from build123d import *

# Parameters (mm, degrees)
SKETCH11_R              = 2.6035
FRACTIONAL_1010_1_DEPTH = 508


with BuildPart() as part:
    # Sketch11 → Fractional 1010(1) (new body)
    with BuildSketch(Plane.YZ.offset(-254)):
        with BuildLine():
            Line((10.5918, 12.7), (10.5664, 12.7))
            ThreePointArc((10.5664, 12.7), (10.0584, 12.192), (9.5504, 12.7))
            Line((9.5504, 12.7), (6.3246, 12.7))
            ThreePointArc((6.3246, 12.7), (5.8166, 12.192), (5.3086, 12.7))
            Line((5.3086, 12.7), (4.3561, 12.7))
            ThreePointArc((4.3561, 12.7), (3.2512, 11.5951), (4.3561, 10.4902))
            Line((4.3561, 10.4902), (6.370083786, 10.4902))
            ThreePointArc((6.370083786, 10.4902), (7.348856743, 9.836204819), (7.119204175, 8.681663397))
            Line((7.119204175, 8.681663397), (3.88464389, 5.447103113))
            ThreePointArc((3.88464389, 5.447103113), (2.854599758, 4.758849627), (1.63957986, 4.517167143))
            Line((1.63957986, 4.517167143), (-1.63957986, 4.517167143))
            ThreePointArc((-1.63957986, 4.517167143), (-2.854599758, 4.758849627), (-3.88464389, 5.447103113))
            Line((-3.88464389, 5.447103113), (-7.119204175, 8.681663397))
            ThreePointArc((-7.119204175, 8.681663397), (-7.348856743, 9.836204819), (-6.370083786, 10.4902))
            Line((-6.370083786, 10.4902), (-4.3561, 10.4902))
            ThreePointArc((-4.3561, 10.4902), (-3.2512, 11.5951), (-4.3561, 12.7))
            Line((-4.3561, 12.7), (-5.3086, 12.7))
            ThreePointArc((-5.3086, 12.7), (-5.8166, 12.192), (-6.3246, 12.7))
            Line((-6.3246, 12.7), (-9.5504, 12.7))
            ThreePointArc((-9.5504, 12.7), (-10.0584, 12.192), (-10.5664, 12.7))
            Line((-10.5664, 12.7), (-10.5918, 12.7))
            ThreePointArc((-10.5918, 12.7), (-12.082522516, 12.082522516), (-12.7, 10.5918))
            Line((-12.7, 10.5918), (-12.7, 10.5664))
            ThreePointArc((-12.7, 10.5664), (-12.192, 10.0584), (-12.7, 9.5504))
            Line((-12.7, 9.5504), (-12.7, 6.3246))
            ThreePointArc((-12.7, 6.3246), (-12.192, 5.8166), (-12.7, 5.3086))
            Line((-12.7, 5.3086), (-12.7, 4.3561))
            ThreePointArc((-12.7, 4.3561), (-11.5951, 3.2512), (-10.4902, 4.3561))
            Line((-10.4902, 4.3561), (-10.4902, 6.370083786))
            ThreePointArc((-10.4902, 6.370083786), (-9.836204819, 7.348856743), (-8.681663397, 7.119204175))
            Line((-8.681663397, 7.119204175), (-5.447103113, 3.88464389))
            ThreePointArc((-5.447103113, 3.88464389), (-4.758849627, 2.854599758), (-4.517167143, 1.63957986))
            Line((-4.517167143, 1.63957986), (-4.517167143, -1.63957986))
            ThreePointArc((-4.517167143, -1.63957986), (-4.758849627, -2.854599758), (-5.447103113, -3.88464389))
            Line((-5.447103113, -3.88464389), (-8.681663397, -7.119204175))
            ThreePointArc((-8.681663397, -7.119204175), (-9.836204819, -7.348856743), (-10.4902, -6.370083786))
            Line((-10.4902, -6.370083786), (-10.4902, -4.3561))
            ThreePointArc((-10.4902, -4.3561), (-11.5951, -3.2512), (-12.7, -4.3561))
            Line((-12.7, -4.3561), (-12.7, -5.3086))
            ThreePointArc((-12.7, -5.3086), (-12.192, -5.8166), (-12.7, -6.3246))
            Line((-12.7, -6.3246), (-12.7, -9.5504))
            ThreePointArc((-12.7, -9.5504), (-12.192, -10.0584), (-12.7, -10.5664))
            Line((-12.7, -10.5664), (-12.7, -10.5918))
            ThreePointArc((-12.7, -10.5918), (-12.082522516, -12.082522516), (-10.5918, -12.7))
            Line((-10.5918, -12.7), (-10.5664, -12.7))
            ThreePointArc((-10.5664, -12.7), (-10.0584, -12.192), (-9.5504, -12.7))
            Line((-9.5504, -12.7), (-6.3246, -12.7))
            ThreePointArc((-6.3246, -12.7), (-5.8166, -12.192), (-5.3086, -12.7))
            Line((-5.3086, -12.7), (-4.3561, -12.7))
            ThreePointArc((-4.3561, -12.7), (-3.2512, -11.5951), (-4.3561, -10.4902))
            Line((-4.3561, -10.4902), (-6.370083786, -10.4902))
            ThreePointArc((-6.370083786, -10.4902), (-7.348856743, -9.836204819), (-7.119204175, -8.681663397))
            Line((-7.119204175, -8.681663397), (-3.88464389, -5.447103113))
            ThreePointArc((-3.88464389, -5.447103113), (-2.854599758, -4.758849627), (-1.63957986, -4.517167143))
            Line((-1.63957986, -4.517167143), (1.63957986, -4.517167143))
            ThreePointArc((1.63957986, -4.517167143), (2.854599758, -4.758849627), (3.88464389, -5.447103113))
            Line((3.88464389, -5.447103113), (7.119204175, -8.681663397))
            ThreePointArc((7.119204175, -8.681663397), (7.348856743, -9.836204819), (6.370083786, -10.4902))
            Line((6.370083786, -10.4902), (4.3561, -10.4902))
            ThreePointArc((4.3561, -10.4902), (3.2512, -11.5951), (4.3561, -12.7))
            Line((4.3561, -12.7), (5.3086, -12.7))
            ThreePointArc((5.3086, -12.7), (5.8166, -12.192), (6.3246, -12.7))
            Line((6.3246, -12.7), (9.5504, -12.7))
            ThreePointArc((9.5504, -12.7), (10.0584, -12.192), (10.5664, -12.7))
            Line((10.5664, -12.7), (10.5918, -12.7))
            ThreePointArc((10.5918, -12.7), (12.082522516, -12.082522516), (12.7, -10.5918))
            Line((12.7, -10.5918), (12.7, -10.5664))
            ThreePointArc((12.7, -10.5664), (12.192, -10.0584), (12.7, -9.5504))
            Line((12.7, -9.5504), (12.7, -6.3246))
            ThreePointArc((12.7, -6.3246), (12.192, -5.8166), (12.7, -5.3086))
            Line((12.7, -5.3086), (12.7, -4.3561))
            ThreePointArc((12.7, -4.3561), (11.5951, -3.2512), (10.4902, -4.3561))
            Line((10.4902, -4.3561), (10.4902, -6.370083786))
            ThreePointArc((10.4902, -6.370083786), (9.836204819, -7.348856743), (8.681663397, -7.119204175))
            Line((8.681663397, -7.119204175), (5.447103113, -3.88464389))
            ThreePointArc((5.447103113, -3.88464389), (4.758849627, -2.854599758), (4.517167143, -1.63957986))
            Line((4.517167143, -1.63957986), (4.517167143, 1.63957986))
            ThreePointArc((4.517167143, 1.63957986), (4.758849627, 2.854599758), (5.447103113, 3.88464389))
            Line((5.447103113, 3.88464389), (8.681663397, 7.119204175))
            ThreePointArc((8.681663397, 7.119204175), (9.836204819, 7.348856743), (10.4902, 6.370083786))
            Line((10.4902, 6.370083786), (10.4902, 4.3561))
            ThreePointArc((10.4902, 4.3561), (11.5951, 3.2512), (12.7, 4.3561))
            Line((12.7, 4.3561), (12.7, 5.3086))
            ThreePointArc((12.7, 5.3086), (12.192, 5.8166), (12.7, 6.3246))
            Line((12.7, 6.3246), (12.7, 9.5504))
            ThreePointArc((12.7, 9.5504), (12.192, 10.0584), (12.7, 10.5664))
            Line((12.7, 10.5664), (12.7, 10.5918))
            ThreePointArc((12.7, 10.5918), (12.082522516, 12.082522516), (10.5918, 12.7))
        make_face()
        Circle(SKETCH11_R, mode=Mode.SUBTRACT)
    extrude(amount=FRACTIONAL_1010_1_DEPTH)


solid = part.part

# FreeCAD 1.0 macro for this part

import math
import FreeCAD as App
import Part
import Sketcher

V = App.Vector
Q = App.Units.Quantity

doc = App.newDocument("Part")
body = doc.addObject("PartDesign::Body", "Body")

# Sketch on YZ plane
sketch1 = doc.addObject("Sketcher::SketchObject", "Sketch")
body.addObject(sketch1)
sketch1.AttachmentSupport = (doc.YZ_Plane, [""])
sketch1.MapMode = "FlatFace"
sketch1.AttachmentOffset = App.Placement(V(0, 0, -10 * 25.4), App.Rotation())
sketch1.addGeometry(Part.LineSegment(V(10.5918, 12.7, 0), V(10.5664, 12.7, 0)), False)
sketch1.addGeometry(Part.ArcOfCircle(Part.Circle(V(10.0584, 12.7, 0), V(0, 0, 1), 0.508), math.radians(180), math.radians(360)), False)
sketch1.addGeometry(Part.LineSegment(V(9.5504, 12.7, 0), V(6.3246, 12.7, 0)), False)
sketch1.addGeometry(Part.ArcOfCircle(Part.Circle(V(5.8166, 12.7, 0), V(0, 0, 1), 0.508), math.radians(180), math.radians(360)), False)
sketch1.addGeometry(Part.LineSegment(V(5.3086, 12.7, 0), V(4.3561, 12.7, 0)), False)
sketch1.addGeometry(Part.ArcOfCircle(Part.Circle(V(4.3561, 11.5951, 0), V(0, 0, 1), 1.1049), math.radians(90), math.radians(270)), False)
sketch1.addGeometry(Part.LineSegment(V(4.3561, 10.4902, 0), V(6.370084, 10.4902, 0)), False)
sketch1.addGeometry(Part.ArcOfCircle(Part.Circle(V(6.370084, 9.430784, 0), V(0, 0, 1), 1.059416), math.radians(-45), math.radians(90)), False)
sketch1.addGeometry(Part.LineSegment(V(7.119204, 8.681663, 0), V(3.884644, 5.447103, 0)), False)
sketch1.addGeometry(Part.ArcOfCircle(Part.Circle(V(1.63958, 7.692167, 0), V(0, 0, 1), 3.175), math.radians(-90), math.radians(-45)), False)
sketch1.addGeometry(Part.LineSegment(V(1.63958, 4.517167, 0), V(-1.63958, 4.517167, 0)), False)
sketch1.addGeometry(Part.ArcOfCircle(Part.Circle(V(-1.63958, 7.692167, 0), V(0, 0, 1), 3.175), math.radians(-135), math.radians(-90)), False)
sketch1.addGeometry(Part.LineSegment(V(-3.884644, 5.447103, 0), V(-7.119204, 8.681663, 0)), False)
sketch1.addGeometry(Part.ArcOfCircle(Part.Circle(V(-6.370084, 9.430784, 0), V(0, 0, 1), 1.059416), math.radians(90), math.radians(225)), False)
sketch1.addGeometry(Part.LineSegment(V(-6.370084, 10.4902, 0), V(-4.3561, 10.4902, 0)), False)
sketch1.addGeometry(Part.ArcOfCircle(Part.Circle(V(-4.3561, 11.5951, 0), V(0, 0, 1), 1.1049), math.radians(-90), math.radians(90)), False)
sketch1.addGeometry(Part.LineSegment(V(-4.3561, 12.7, 0), V(-5.3086, 12.7, 0)), False)
sketch1.addGeometry(Part.ArcOfCircle(Part.Circle(V(-5.8166, 12.7, 0), V(0, 0, 1), 0.508), math.radians(180), math.radians(360)), False)
sketch1.addGeometry(Part.LineSegment(V(-6.3246, 12.7, 0), V(-9.5504, 12.7, 0)), False)
sketch1.addGeometry(Part.ArcOfCircle(Part.Circle(V(-10.0584, 12.7, 0), V(0, 0, 1), 0.508), math.radians(180), math.radians(360)), False)
sketch1.addGeometry(Part.LineSegment(V(-10.5664, 12.7, 0), V(-10.5918, 12.7, 0)), False)
sketch1.addGeometry(Part.ArcOfCircle(Part.Circle(V(-10.5918, 10.5918, 0), V(0, 0, 1), 2.1082), math.radians(90), math.radians(180)), False)
sketch1.addGeometry(Part.LineSegment(V(-12.7, 10.5918, 0), V(-12.7, 10.5664, 0)), False)
sketch1.addGeometry(Part.ArcOfCircle(Part.Circle(V(-12.7, 10.0584, 0), V(0, 0, 1), 0.508), math.radians(-90), math.radians(90)), False)
sketch1.addGeometry(Part.LineSegment(V(-12.7, 9.5504, 0), V(-12.7, 6.3246, 0)), False)
sketch1.addGeometry(Part.ArcOfCircle(Part.Circle(V(-12.7, 5.8166, 0), V(0, 0, 1), 0.508), math.radians(-90), math.radians(90)), False)
sketch1.addGeometry(Part.LineSegment(V(-12.7, 5.3086, 0), V(-12.7, 4.3561, 0)), False)
sketch1.addGeometry(Part.ArcOfCircle(Part.Circle(V(-11.5951, 4.3561, 0), V(0, 0, 1), 1.1049), math.radians(180), math.radians(360)), False)
sketch1.addGeometry(Part.LineSegment(V(-10.4902, 4.3561, 0), V(-10.4902, 6.370084, 0)), False)
sketch1.addGeometry(Part.ArcOfCircle(Part.Circle(V(-9.430784, 6.370084, 0), V(0, 0, 1), 1.059416), math.radians(45), math.radians(180)), False)
sketch1.addGeometry(Part.LineSegment(V(-8.681663, 7.119204, 0), V(-5.447103, 3.884644, 0)), False)
sketch1.addGeometry(Part.ArcOfCircle(Part.Circle(V(-7.692167, 1.63958, 0), V(0, 0, 1), 3.175), math.radians(0), math.radians(45)), False)
sketch1.addGeometry(Part.LineSegment(V(-4.517167, 1.63958, 0), V(-4.517167, -1.63958, 0)), False)
sketch1.addGeometry(Part.ArcOfCircle(Part.Circle(V(-7.692167, -1.63958, 0), V(0, 0, 1), 3.175), math.radians(-45), math.radians(0)), False)
sketch1.addGeometry(Part.LineSegment(V(-5.447103, -3.884644, 0), V(-8.681663, -7.119204, 0)), False)
sketch1.addGeometry(Part.ArcOfCircle(Part.Circle(V(-9.430784, -6.370084, 0), V(0, 0, 1), 1.059416), math.radians(180), math.radians(315)), False)
sketch1.addGeometry(Part.LineSegment(V(-10.4902, -6.370084, 0), V(-10.4902, -4.3561, 0)), False)
sketch1.addGeometry(Part.ArcOfCircle(Part.Circle(V(-11.5951, -4.3561, 0), V(0, 0, 1), 1.1049), math.radians(0), math.radians(180)), False)
sketch1.addGeometry(Part.LineSegment(V(-12.7, -4.3561, 0), V(-12.7, -5.3086, 0)), False)
sketch1.addGeometry(Part.ArcOfCircle(Part.Circle(V(-12.7, -5.8166, 0), V(0, 0, 1), 0.508), math.radians(-90), math.radians(90)), False)
sketch1.addGeometry(Part.LineSegment(V(-12.7, -6.3246, 0), V(-12.7, -9.5504, 0)), False)
sketch1.addGeometry(Part.ArcOfCircle(Part.Circle(V(-12.7, -10.0584, 0), V(0, 0, 1), 0.508), math.radians(-90), math.radians(90)), False)
sketch1.addGeometry(Part.LineSegment(V(-12.7, -10.5664, 0), V(-12.7, -10.5918, 0)), False)
sketch1.addGeometry(Part.ArcOfCircle(Part.Circle(V(-10.5918, -10.5918, 0), V(0, 0, 1), 2.1082), math.radians(180), math.radians(270)), False)
sketch1.addGeometry(Part.LineSegment(V(-10.5918, -12.7, 0), V(-10.5664, -12.7, 0)), False)
sketch1.addGeometry(Part.ArcOfCircle(Part.Circle(V(-10.0584, -12.7, 0), V(0, 0, 1), 0.508), math.radians(0), math.radians(180)), False)
sketch1.addGeometry(Part.LineSegment(V(-9.5504, -12.7, 0), V(-6.3246, -12.7, 0)), False)
sketch1.addGeometry(Part.ArcOfCircle(Part.Circle(V(-5.8166, -12.7, 0), V(0, 0, 1), 0.508), math.radians(0), math.radians(180)), False)
sketch1.addGeometry(Part.LineSegment(V(-5.3086, -12.7, 0), V(-4.3561, -12.7, 0)), False)
sketch1.addGeometry(Part.ArcOfCircle(Part.Circle(V(-4.3561, -11.5951, 0), V(0, 0, 1), 1.1049), math.radians(-90), math.radians(90)), False)
sketch1.addGeometry(Part.LineSegment(V(-4.3561, -10.4902, 0), V(-6.370084, -10.4902, 0)), False)
sketch1.addGeometry(Part.ArcOfCircle(Part.Circle(V(-6.370084, -9.430784, 0), V(0, 0, 1), 1.059416), math.radians(135), math.radians(270)), False)
sketch1.addGeometry(Part.LineSegment(V(-7.119204, -8.681663, 0), V(-3.884644, -5.447103, 0)), False)
sketch1.addGeometry(Part.ArcOfCircle(Part.Circle(V(-1.63958, -7.692167, 0), V(0, 0, 1), 3.175), math.radians(90), math.radians(135)), False)
sketch1.addGeometry(Part.LineSegment(V(-1.63958, -4.517167, 0), V(1.63958, -4.517167, 0)), False)
sketch1.addGeometry(Part.ArcOfCircle(Part.Circle(V(1.63958, -7.692167, 0), V(0, 0, 1), 3.175), math.radians(45), math.radians(90)), False)
sketch1.addGeometry(Part.LineSegment(V(3.884644, -5.447103, 0), V(7.119204, -8.681663, 0)), False)
sketch1.addGeometry(Part.ArcOfCircle(Part.Circle(V(6.370084, -9.430784, 0), V(0, 0, 1), 1.059416), math.radians(-90), math.radians(45)), False)
sketch1.addGeometry(Part.LineSegment(V(6.370084, -10.4902, 0), V(4.3561, -10.4902, 0)), False)
sketch1.addGeometry(Part.ArcOfCircle(Part.Circle(V(4.3561, -11.5951, 0), V(0, 0, 1), 1.1049), math.radians(90), math.radians(270)), False)
sketch1.addGeometry(Part.LineSegment(V(4.3561, -12.7, 0), V(5.3086, -12.7, 0)), False)
sketch1.addGeometry(Part.ArcOfCircle(Part.Circle(V(5.8166, -12.7, 0), V(0, 0, 1), 0.508), math.radians(0), math.radians(180)), False)
sketch1.addGeometry(Part.LineSegment(V(6.3246, -12.7, 0), V(9.5504, -12.7, 0)), False)
sketch1.addGeometry(Part.ArcOfCircle(Part.Circle(V(10.0584, -12.7, 0), V(0, 0, 1), 0.508), math.radians(0), math.radians(180)), False)
sketch1.addGeometry(Part.LineSegment(V(10.5664, -12.7, 0), V(10.5918, -12.7, 0)), False)
sketch1.addGeometry(Part.ArcOfCircle(Part.Circle(V(10.5918, -10.5918, 0), V(0, 0, 1), 2.1082), math.radians(-90), math.radians(0)), False)
sketch1.addGeometry(Part.LineSegment(V(12.7, -10.5918, 0), V(12.7, -10.5664, 0)), False)
sketch1.addGeometry(Part.ArcOfCircle(Part.Circle(V(12.7, -10.0584, 0), V(0, 0, 1), 0.508), math.radians(90), math.radians(270)), False)
sketch1.addGeometry(Part.LineSegment(V(12.7, -9.5504, 0), V(12.7, -6.3246, 0)), False)
sketch1.addGeometry(Part.ArcOfCircle(Part.Circle(V(12.7, -5.8166, 0), V(0, 0, 1), 0.508), math.radians(90), math.radians(270)), False)
sketch1.addGeometry(Part.LineSegment(V(12.7, -5.3086, 0), V(12.7, -4.3561, 0)), False)
sketch1.addGeometry(Part.ArcOfCircle(Part.Circle(V(11.5951, -4.3561, 0), V(0, 0, 1), 1.1049), math.radians(0), math.radians(180)), False)
sketch1.addGeometry(Part.LineSegment(V(10.4902, -4.3561, 0), V(10.4902, -6.370084, 0)), False)
sketch1.addGeometry(Part.ArcOfCircle(Part.Circle(V(9.430784, -6.370084, 0), V(0, 0, 1), 1.059416), math.radians(-135), math.radians(0)), False)
sketch1.addGeometry(Part.LineSegment(V(8.681663, -7.119204, 0), V(5.447103, -3.884644, 0)), False)
sketch1.addGeometry(Part.ArcOfCircle(Part.Circle(V(7.692167, -1.63958, 0), V(0, 0, 1), 3.175), math.radians(180), math.radians(225)), False)
sketch1.addGeometry(Part.LineSegment(V(4.517167, -1.63958, 0), V(4.517167, 1.63958, 0)), False)
sketch1.addGeometry(Part.ArcOfCircle(Part.Circle(V(7.692167, 1.63958, 0), V(0, 0, 1), 3.175), math.radians(135), math.radians(180)), False)
sketch1.addGeometry(Part.LineSegment(V(5.447103, 3.884644, 0), V(8.681663, 7.119204, 0)), False)
sketch1.addGeometry(Part.ArcOfCircle(Part.Circle(V(9.430784, 6.370084, 0), V(0, 0, 1), 1.059416), math.radians(0), math.radians(135)), False)
sketch1.addGeometry(Part.LineSegment(V(10.4902, 6.370084, 0), V(10.4902, 4.3561, 0)), False)
sketch1.addGeometry(Part.ArcOfCircle(Part.Circle(V(11.5951, 4.3561, 0), V(0, 0, 1), 1.1049), math.radians(180), math.radians(360)), False)
sketch1.addGeometry(Part.LineSegment(V(12.7, 4.3561, 0), V(12.7, 5.3086, 0)), False)
sketch1.addGeometry(Part.ArcOfCircle(Part.Circle(V(12.7, 5.8166, 0), V(0, 0, 1), 0.508), math.radians(90), math.radians(270)), False)
sketch1.addGeometry(Part.LineSegment(V(12.7, 6.3246, 0), V(12.7, 9.5504, 0)), False)
sketch1.addGeometry(Part.ArcOfCircle(Part.Circle(V(12.7, 10.0584, 0), V(0, 0, 1), 0.508), math.radians(90), math.radians(270)), False)
sketch1.addGeometry(Part.LineSegment(V(12.7, 10.5664, 0), V(12.7, 10.5918, 0)), False)
sketch1.addGeometry(Part.ArcOfCircle(Part.Circle(V(10.5918, 10.5918, 0), V(0, 0, 1), 2.1082), math.radians(0), math.radians(90)), False)
sketch1.addGeometry(Part.Circle(V(0, 0, 0), V(0, 0, 1), 2.6035), False)
sketch1.addConstraint(Sketcher.Constraint("Coincident", 0, 2, 1, 2))
sketch1.addConstraint(Sketcher.Constraint("Coincident", 1, 1, 2, 1))
sketch1.addConstraint(Sketcher.Constraint("Coincident", 2, 2, 3, 2))
sketch1.addConstraint(Sketcher.Constraint("Coincident", 3, 1, 4, 1))
sketch1.addConstraint(Sketcher.Constraint("Tangent", 4, 2, 5, 1))
sketch1.addConstraint(Sketcher.Constraint("Tangent", 5, 2, 6, 1))
sketch1.addConstraint(Sketcher.Constraint("Tangent", 6, 2, 7, 2))
sketch1.addConstraint(Sketcher.Constraint("Tangent", 7, 1, 8, 1))
sketch1.addConstraint(Sketcher.Constraint("Tangent", 8, 2, 9, 2))
sketch1.addConstraint(Sketcher.Constraint("Tangent", 9, 1, 10, 1))
sketch1.addConstraint(Sketcher.Constraint("Tangent", 10, 2, 11, 2))
sketch1.addConstraint(Sketcher.Constraint("Tangent", 11, 1, 12, 1))
sketch1.addConstraint(Sketcher.Constraint("Tangent", 12, 2, 13, 2))
sketch1.addConstraint(Sketcher.Constraint("Tangent", 13, 1, 14, 1))
sketch1.addConstraint(Sketcher.Constraint("Tangent", 14, 2, 15, 1))
sketch1.addConstraint(Sketcher.Constraint("Tangent", 15, 2, 16, 1))
sketch1.addConstraint(Sketcher.Constraint("Coincident", 16, 2, 17, 2))
sketch1.addConstraint(Sketcher.Constraint("Coincident", 17, 1, 18, 1))
sketch1.addConstraint(Sketcher.Constraint("Coincident", 18, 2, 19, 2))
sketch1.addConstraint(Sketcher.Constraint("Coincident", 19, 1, 20, 1))
sketch1.addConstraint(Sketcher.Constraint("Tangent", 20, 2, 21, 1))
sketch1.addConstraint(Sketcher.Constraint("Tangent", 21, 2, 22, 1))
sketch1.addConstraint(Sketcher.Constraint("Coincident", 22, 2, 23, 2))
sketch1.addConstraint(Sketcher.Constraint("Coincident", 23, 1, 24, 1))
sketch1.addConstraint(Sketcher.Constraint("Coincident", 24, 2, 25, 2))
sketch1.addConstraint(Sketcher.Constraint("Coincident", 25, 1, 26, 1))
sketch1.addConstraint(Sketcher.Constraint("Tangent", 26, 2, 27, 1))
sketch1.addConstraint(Sketcher.Constraint("Tangent", 27, 2, 28, 1))
sketch1.addConstraint(Sketcher.Constraint("Tangent", 28, 2, 29, 2))
sketch1.addConstraint(Sketcher.Constraint("Tangent", 29, 1, 30, 1))
sketch1.addConstraint(Sketcher.Constraint("Tangent", 30, 2, 31, 2))
sketch1.addConstraint(Sketcher.Constraint("Tangent", 31, 1, 32, 1))
sketch1.addConstraint(Sketcher.Constraint("Tangent", 32, 2, 33, 2))
sketch1.addConstraint(Sketcher.Constraint("Tangent", 33, 1, 34, 1))
sketch1.addConstraint(Sketcher.Constraint("Tangent", 34, 2, 35, 2))
sketch1.addConstraint(Sketcher.Constraint("Tangent", 35, 1, 36, 1))
sketch1.addConstraint(Sketcher.Constraint("Tangent", 36, 2, 37, 1))
sketch1.addConstraint(Sketcher.Constraint("Tangent", 37, 2, 38, 1))
sketch1.addConstraint(Sketcher.Constraint("Coincident", 38, 2, 39, 2))
sketch1.addConstraint(Sketcher.Constraint("Coincident", 39, 1, 40, 1))
sketch1.addConstraint(Sketcher.Constraint("Coincident", 40, 2, 41, 2))
sketch1.addConstraint(Sketcher.Constraint("Coincident", 41, 1, 42, 1))
sketch1.addConstraint(Sketcher.Constraint("Tangent", 42, 2, 43, 1))
sketch1.addConstraint(Sketcher.Constraint("Tangent", 43, 2, 44, 1))
sketch1.addConstraint(Sketcher.Constraint("Coincident", 44, 2, 45, 2))
sketch1.addConstraint(Sketcher.Constraint("Coincident", 45, 1, 46, 1))
sketch1.addConstraint(Sketcher.Constraint("Coincident", 46, 2, 47, 2))
sketch1.addConstraint(Sketcher.Constraint("Coincident", 47, 1, 48, 1))
sketch1.addConstraint(Sketcher.Constraint("Tangent", 48, 2, 49, 1))
sketch1.addConstraint(Sketcher.Constraint("Tangent", 49, 2, 50, 1))
sketch1.addConstraint(Sketcher.Constraint("Tangent", 50, 2, 51, 2))
sketch1.addConstraint(Sketcher.Constraint("Tangent", 51, 1, 52, 1))
sketch1.addConstraint(Sketcher.Constraint("Tangent", 52, 2, 53, 2))
sketch1.addConstraint(Sketcher.Constraint("Tangent", 53, 1, 54, 1))
sketch1.addConstraint(Sketcher.Constraint("Tangent", 54, 2, 55, 2))
sketch1.addConstraint(Sketcher.Constraint("Tangent", 55, 1, 56, 1))
sketch1.addConstraint(Sketcher.Constraint("Tangent", 56, 2, 57, 2))
sketch1.addConstraint(Sketcher.Constraint("Tangent", 57, 1, 58, 1))
sketch1.addConstraint(Sketcher.Constraint("Tangent", 58, 2, 59, 1))
sketch1.addConstraint(Sketcher.Constraint("Tangent", 59, 2, 60, 1))
sketch1.addConstraint(Sketcher.Constraint("Coincident", 60, 2, 61, 2))
sketch1.addConstraint(Sketcher.Constraint("Coincident", 61, 1, 62, 1))
sketch1.addConstraint(Sketcher.Constraint("Coincident", 62, 2, 63, 2))
sketch1.addConstraint(Sketcher.Constraint("Coincident", 63, 1, 64, 1))
sketch1.addConstraint(Sketcher.Constraint("Tangent", 64, 2, 65, 1))
sketch1.addConstraint(Sketcher.Constraint("Tangent", 65, 2, 66, 1))
sketch1.addConstraint(Sketcher.Constraint("Coincident", 66, 2, 67, 2))
sketch1.addConstraint(Sketcher.Constraint("Coincident", 67, 1, 68, 1))
sketch1.addConstraint(Sketcher.Constraint("Coincident", 68, 2, 69, 2))
sketch1.addConstraint(Sketcher.Constraint("Coincident", 69, 1, 70, 1))
sketch1.addConstraint(Sketcher.Constraint("Tangent", 70, 2, 71, 1))
sketch1.addConstraint(Sketcher.Constraint("Tangent", 71, 2, 72, 1))
sketch1.addConstraint(Sketcher.Constraint("Tangent", 72, 2, 73, 2))
sketch1.addConstraint(Sketcher.Constraint("Tangent", 73, 1, 74, 1))
sketch1.addConstraint(Sketcher.Constraint("Tangent", 74, 2, 75, 2))
sketch1.addConstraint(Sketcher.Constraint("Tangent", 75, 1, 76, 1))
sketch1.addConstraint(Sketcher.Constraint("Tangent", 76, 2, 77, 2))
sketch1.addConstraint(Sketcher.Constraint("Tangent", 77, 1, 78, 1))
sketch1.addConstraint(Sketcher.Constraint("Tangent", 78, 2, 79, 2))
sketch1.addConstraint(Sketcher.Constraint("Tangent", 79, 1, 80, 1))
sketch1.addConstraint(Sketcher.Constraint("Tangent", 80, 2, 81, 1))
sketch1.addConstraint(Sketcher.Constraint("Tangent", 81, 2, 82, 1))
sketch1.addConstraint(Sketcher.Constraint("Coincident", 82, 2, 83, 2))
sketch1.addConstraint(Sketcher.Constraint("Coincident", 83, 1, 84, 1))
sketch1.addConstraint(Sketcher.Constraint("Coincident", 84, 2, 85, 2))
sketch1.addConstraint(Sketcher.Constraint("Coincident", 85, 1, 86, 1))
sketch1.addConstraint(Sketcher.Constraint("Tangent", 86, 2, 87, 1))
sketch1.addConstraint(Sketcher.Constraint("Tangent", 87, 2, 0, 1))
sketch1.addConstraint(Sketcher.Constraint("Horizontal", 0))
sketch1.addConstraint(Sketcher.Constraint("Horizontal", 2))
sketch1.addConstraint(Sketcher.Constraint("Horizontal", 4))
sketch1.addConstraint(Sketcher.Constraint("Horizontal", 6))
sketch1.addConstraint(Sketcher.Constraint("Horizontal", 10))
sketch1.addConstraint(Sketcher.Constraint("Horizontal", 14))
sketch1.addConstraint(Sketcher.Constraint("Horizontal", 16))
sketch1.addConstraint(Sketcher.Constraint("Horizontal", 18))
sketch1.addConstraint(Sketcher.Constraint("Horizontal", 20))
sketch1.addConstraint(Sketcher.Constraint("Vertical", 22))
sketch1.addConstraint(Sketcher.Constraint("Vertical", 24))
sketch1.addConstraint(Sketcher.Constraint("Vertical", 26))
sketch1.addConstraint(Sketcher.Constraint("Vertical", 28))
sketch1.addConstraint(Sketcher.Constraint("Vertical", 32))
sketch1.addConstraint(Sketcher.Constraint("Vertical", 36))
sketch1.addConstraint(Sketcher.Constraint("Vertical", 38))
sketch1.addConstraint(Sketcher.Constraint("Vertical", 40))
sketch1.addConstraint(Sketcher.Constraint("Vertical", 42))
sketch1.addConstraint(Sketcher.Constraint("Horizontal", 44))
sketch1.addConstraint(Sketcher.Constraint("Horizontal", 46))
sketch1.addConstraint(Sketcher.Constraint("Horizontal", 48))
sketch1.addConstraint(Sketcher.Constraint("Horizontal", 50))
sketch1.addConstraint(Sketcher.Constraint("Horizontal", 54))
sketch1.addConstraint(Sketcher.Constraint("Horizontal", 58))
sketch1.addConstraint(Sketcher.Constraint("Horizontal", 60))
sketch1.addConstraint(Sketcher.Constraint("Horizontal", 62))
sketch1.addConstraint(Sketcher.Constraint("Horizontal", 64))
sketch1.addConstraint(Sketcher.Constraint("Vertical", 66))
sketch1.addConstraint(Sketcher.Constraint("Vertical", 68))
sketch1.addConstraint(Sketcher.Constraint("Vertical", 70))
sketch1.addConstraint(Sketcher.Constraint("Vertical", 72))
sketch1.addConstraint(Sketcher.Constraint("Vertical", 76))
sketch1.addConstraint(Sketcher.Constraint("Vertical", 80))
sketch1.addConstraint(Sketcher.Constraint("Vertical", 82))
sketch1.addConstraint(Sketcher.Constraint("Vertical", 84))
sketch1.addConstraint(Sketcher.Constraint("Vertical", 86))
sketch1.addConstraint(Sketcher.Constraint("Coincident", 88, 3, -1, 1))
sketch1.addConstraint(Sketcher.Constraint("Equal", 1, 3))
sketch1.addConstraint(Sketcher.Constraint("Equal", 9, 11))
sketch1.addConstraint(Sketcher.Constraint("Equal", 7, 13))
sketch1.addConstraint(Sketcher.Constraint("Equal", 5, 15))
sketch1.addConstraint(Sketcher.Constraint("Equal", 3, 17))
sketch1.addConstraint(Sketcher.Constraint("Equal", 17, 19))
sketch1.addConstraint(Sketcher.Constraint("Equal", 19, 23))
sketch1.addConstraint(Sketcher.Constraint("Equal", 23, 25))
sketch1.addConstraint(Sketcher.Constraint("Equal", 15, 27))
sketch1.addConstraint(Sketcher.Constraint("Equal", 13, 29))
sketch1.addConstraint(Sketcher.Constraint("Equal", 11, 31))
sketch1.addConstraint(Sketcher.Constraint("Equal", 31, 33))
sketch1.addConstraint(Sketcher.Constraint("Equal", 29, 35))
sketch1.addConstraint(Sketcher.Constraint("Equal", 27, 37))
sketch1.addConstraint(Sketcher.Constraint("Equal", 25, 39))
sketch1.addConstraint(Sketcher.Constraint("Equal", 39, 41))
sketch1.addConstraint(Sketcher.Constraint("Equal", 21, 43))
sketch1.addConstraint(Sketcher.Constraint("Equal", 41, 45))
sketch1.addConstraint(Sketcher.Constraint("Equal", 45, 47))
sketch1.addConstraint(Sketcher.Constraint("Equal", 37, 49))
sketch1.addConstraint(Sketcher.Constraint("Equal", 35, 51))
sketch1.addConstraint(Sketcher.Constraint("Equal", 33, 53))
sketch1.addConstraint(Sketcher.Constraint("Equal", 53, 55))
sketch1.addConstraint(Sketcher.Constraint("Equal", 51, 57))
sketch1.addConstraint(Sketcher.Constraint("Equal", 49, 59))
sketch1.addConstraint(Sketcher.Constraint("Equal", 47, 61))
sketch1.addConstraint(Sketcher.Constraint("Equal", 61, 63))
sketch1.addConstraint(Sketcher.Constraint("Equal", 43, 65))
sketch1.addConstraint(Sketcher.Constraint("Equal", 63, 67))
sketch1.addConstraint(Sketcher.Constraint("Equal", 67, 69))
sketch1.addConstraint(Sketcher.Constraint("Equal", 59, 71))
sketch1.addConstraint(Sketcher.Constraint("Equal", 57, 73))
sketch1.addConstraint(Sketcher.Constraint("Equal", 55, 75))
sketch1.addConstraint(Sketcher.Constraint("Equal", 75, 77))
sketch1.addConstraint(Sketcher.Constraint("Equal", 73, 79))
sketch1.addConstraint(Sketcher.Constraint("Equal", 71, 81))
sketch1.addConstraint(Sketcher.Constraint("Equal", 69, 83))
sketch1.addConstraint(Sketcher.Constraint("Equal", 83, 85))
sketch1.addConstraint(Sketcher.Constraint("Equal", 65, 87))
sketch1.addConstraint(Sketcher.Constraint("Symmetric", 1, 3, 45, 3, -1, 1))
sketch1.addConstraint(Sketcher.Constraint("Symmetric", 3, 3, 47, 3, -1, 1))
sketch1.addConstraint(Sketcher.Constraint("Symmetric", 5, 3, 49, 3, -1, 1))
sketch1.addConstraint(Sketcher.Constraint("Symmetric", 9, 3, 53, 3, -1, 1))
sketch1.addConstraint(Sketcher.Constraint("Symmetric", 13, 3, 57, 3, -1, 1))
sketch1.addConstraint(Sketcher.Constraint("Symmetric", 17, 3, 61, 3, -1, 1))
sketch1.addConstraint(Sketcher.Constraint("Symmetric", 19, 3, 63, 3, -1, 1))
sketch1.addConstraint(Sketcher.Constraint("Symmetric", 21, 3, 65, 3, -1, 1))
sketch1.addConstraint(Sketcher.Constraint("Symmetric", 23, 3, 67, 3, -1, 1))
sketch1.addConstraint(Sketcher.Constraint("Symmetric", 25, 3, 69, 3, -1, 1))
sketch1.addConstraint(Sketcher.Constraint("Symmetric", 27, 3, 71, 3, -1, 1))
sketch1.addConstraint(Sketcher.Constraint("Symmetric", 31, 3, 75, 3, -1, 1))
sketch1.addConstraint(Sketcher.Constraint("Symmetric", 35, 3, 79, 3, -1, 1))
sketch1.addConstraint(Sketcher.Constraint("Symmetric", 39, 3, 83, 3, -1, 1))
sketch1.addConstraint(Sketcher.Constraint("Symmetric", 41, 3, 85, 3, -1, 1))
sketch1.addConstraint(Sketcher.Constraint("Symmetric", 43, 3, 87, 3, -1, 1))
sketch1.addConstraint(Sketcher.Constraint("Symmetric", 7, 3, 13, 3, -2))
sketch1.addConstraint(Sketcher.Constraint("Symmetric", 3, 3, 17, 3, -2))
sketch1.addConstraint(Sketcher.Constraint("Symmetric", 1, 3, 19, 3, -2))
sketch1.addConstraint(Sketcher.Constraint("Symmetric", 43, 3, 65, 3, -2))
sketch1.addConstraint(Sketcher.Constraint("Symmetric", 41, 3, 67, 3, -2))
sketch1.addConstraint(Sketcher.Constraint("Symmetric", 39, 3, 69, 3, -2))
sketch1.addConstraint(Sketcher.Constraint("Symmetric", 37, 3, 71, 3, -2))
sketch1.addConstraint(Sketcher.Constraint("Symmetric", 52, 2, 55, 1, -2))
sketch1.addConstraint(Sketcher.Constraint("Symmetric", 34, 2, 73, 1, -2))
sketch1.addConstraint(Sketcher.Constraint("Symmetric", 30, 2, 77, 1, -2))
sketch1.addConstraint(Sketcher.Constraint("Perpendicular", 8, 12))
sketch1.addConstraint(Sketcher.Constraint("Parallel", 12, 30))
sketch1.addConstraint(Sketcher.Constraint("Perpendicular", 30, 34))
sketch1.addConstraint(Sketcher.Constraint("Horizontal", 1, 3, 3, 3))
sketch1.addConstraint(Sketcher.Constraint("Horizontal", 27, 3, 81, 3))
sketch1.addConstraint(Sketcher.Constraint("Horizontal", 19, 3, 0, 2))
sketch1.addConstraint(Sketcher.Constraint("Horizontal", 0, 2, 1, 1))
sketch1.addConstraint(Sketcher.Constraint("Horizontal", 2, 2, 3, 1))
sketch1.addConstraint(Sketcher.Constraint("Horizontal", 16, 2, 17, 1))
sketch1.addConstraint(Sketcher.Constraint("Horizontal", 44, 2, 45, 1))
sketch1.addConstraint(Sketcher.Constraint("Horizontal", 60, 2, 61, 1))
sketch1.addConstraint(Sketcher.Constraint("Vertical", 23, 3, 25, 3))
sketch1.addConstraint(Sketcher.Constraint("Vertical", 15, 3, 49, 3))
sketch1.addConstraint(Sketcher.Constraint("Vertical", 5, 3, 59, 3))
sketch1.addConstraint(Sketcher.Constraint("Vertical", 41, 3, 21, 2))
sketch1.addConstraint(Sketcher.Constraint("Vertical", 22, 2, 23, 1))
sketch1.addConstraint(Sketcher.Constraint("Vertical", 24, 2, 25, 1))
sketch1.addConstraint(Sketcher.Constraint("Vertical", 38, 2, 39, 1))
sketch1.addConstraint(Sketcher.Constraint("Vertical", 66, 2, 67, 1))
sketch1.addConstraint(Sketcher.Constraint("Vertical", 82, 2, 83, 1))
sketch1.addConstraint(Sketcher.Constraint("Equal", 64, 22))
sketch1.addConstraint(Sketcher.Constraint("Equal", 62, 24))
sketch1.addConstraint(Sketcher.Constraint("Equal", 60, 26))
sketch1.addConstraint(Sketcher.Constraint("Equal", 58, 28))
sketch1.addConstraint(Sketcher.Constraint("Equal", 54, 32))
sketch1.addConstraint(Sketcher.Constraint("Equal", 12, 30))
sketch1.addConstraint(Sketcher.Constraint("Radius", 1, Q("0.02 in")))
sketch1.addConstraint(Sketcher.Constraint("Diameter", 88, Q("0.205 in")))
sketch1.addConstraint(Sketcher.Constraint("Radius", 9, Q("0.125 in")))
sketch1.addConstraint(Sketcher.Constraint("Radius", 21, Q("0.083 in")))
sketch1.addConstraint(Sketcher.Constraint("DistanceY", -1, 1, 1, 3, Q("0.5 in")))
sketch1.addConstraint(Sketcher.Constraint("Radius", 5, Q("0.0435 in")))
sketch1.addConstraint(Sketcher.Constraint("DistanceX", 0, 2, 0, 1, Q("0.001 in")))
sketch1.addConstraint(Sketcher.Constraint("DistanceX", 2, 2, 2, 1, Q("0.127 in")))
sketch1.addConstraint(Sketcher.Constraint("DistanceX", 4, 2, 4, 1, Q("0.0375 in")))
sketch1.addConstraint(Sketcher.Constraint("Radius", 7, Q("1.059416 mm")))
sketch1.addConstraint(Sketcher.Constraint("DistanceX", 10, 2, 10, 1, Q("3.27916 mm")))
sketch1.addConstraint(Sketcher.Constraint("Distance", 8, Q("4.574359 mm")))
pad1 = doc.addObject("PartDesign::Pad", "Pad")
body.addObject(pad1)
pad1.Profile = sketch1
pad1.Length = Q("20 in")

doc.recompute()
